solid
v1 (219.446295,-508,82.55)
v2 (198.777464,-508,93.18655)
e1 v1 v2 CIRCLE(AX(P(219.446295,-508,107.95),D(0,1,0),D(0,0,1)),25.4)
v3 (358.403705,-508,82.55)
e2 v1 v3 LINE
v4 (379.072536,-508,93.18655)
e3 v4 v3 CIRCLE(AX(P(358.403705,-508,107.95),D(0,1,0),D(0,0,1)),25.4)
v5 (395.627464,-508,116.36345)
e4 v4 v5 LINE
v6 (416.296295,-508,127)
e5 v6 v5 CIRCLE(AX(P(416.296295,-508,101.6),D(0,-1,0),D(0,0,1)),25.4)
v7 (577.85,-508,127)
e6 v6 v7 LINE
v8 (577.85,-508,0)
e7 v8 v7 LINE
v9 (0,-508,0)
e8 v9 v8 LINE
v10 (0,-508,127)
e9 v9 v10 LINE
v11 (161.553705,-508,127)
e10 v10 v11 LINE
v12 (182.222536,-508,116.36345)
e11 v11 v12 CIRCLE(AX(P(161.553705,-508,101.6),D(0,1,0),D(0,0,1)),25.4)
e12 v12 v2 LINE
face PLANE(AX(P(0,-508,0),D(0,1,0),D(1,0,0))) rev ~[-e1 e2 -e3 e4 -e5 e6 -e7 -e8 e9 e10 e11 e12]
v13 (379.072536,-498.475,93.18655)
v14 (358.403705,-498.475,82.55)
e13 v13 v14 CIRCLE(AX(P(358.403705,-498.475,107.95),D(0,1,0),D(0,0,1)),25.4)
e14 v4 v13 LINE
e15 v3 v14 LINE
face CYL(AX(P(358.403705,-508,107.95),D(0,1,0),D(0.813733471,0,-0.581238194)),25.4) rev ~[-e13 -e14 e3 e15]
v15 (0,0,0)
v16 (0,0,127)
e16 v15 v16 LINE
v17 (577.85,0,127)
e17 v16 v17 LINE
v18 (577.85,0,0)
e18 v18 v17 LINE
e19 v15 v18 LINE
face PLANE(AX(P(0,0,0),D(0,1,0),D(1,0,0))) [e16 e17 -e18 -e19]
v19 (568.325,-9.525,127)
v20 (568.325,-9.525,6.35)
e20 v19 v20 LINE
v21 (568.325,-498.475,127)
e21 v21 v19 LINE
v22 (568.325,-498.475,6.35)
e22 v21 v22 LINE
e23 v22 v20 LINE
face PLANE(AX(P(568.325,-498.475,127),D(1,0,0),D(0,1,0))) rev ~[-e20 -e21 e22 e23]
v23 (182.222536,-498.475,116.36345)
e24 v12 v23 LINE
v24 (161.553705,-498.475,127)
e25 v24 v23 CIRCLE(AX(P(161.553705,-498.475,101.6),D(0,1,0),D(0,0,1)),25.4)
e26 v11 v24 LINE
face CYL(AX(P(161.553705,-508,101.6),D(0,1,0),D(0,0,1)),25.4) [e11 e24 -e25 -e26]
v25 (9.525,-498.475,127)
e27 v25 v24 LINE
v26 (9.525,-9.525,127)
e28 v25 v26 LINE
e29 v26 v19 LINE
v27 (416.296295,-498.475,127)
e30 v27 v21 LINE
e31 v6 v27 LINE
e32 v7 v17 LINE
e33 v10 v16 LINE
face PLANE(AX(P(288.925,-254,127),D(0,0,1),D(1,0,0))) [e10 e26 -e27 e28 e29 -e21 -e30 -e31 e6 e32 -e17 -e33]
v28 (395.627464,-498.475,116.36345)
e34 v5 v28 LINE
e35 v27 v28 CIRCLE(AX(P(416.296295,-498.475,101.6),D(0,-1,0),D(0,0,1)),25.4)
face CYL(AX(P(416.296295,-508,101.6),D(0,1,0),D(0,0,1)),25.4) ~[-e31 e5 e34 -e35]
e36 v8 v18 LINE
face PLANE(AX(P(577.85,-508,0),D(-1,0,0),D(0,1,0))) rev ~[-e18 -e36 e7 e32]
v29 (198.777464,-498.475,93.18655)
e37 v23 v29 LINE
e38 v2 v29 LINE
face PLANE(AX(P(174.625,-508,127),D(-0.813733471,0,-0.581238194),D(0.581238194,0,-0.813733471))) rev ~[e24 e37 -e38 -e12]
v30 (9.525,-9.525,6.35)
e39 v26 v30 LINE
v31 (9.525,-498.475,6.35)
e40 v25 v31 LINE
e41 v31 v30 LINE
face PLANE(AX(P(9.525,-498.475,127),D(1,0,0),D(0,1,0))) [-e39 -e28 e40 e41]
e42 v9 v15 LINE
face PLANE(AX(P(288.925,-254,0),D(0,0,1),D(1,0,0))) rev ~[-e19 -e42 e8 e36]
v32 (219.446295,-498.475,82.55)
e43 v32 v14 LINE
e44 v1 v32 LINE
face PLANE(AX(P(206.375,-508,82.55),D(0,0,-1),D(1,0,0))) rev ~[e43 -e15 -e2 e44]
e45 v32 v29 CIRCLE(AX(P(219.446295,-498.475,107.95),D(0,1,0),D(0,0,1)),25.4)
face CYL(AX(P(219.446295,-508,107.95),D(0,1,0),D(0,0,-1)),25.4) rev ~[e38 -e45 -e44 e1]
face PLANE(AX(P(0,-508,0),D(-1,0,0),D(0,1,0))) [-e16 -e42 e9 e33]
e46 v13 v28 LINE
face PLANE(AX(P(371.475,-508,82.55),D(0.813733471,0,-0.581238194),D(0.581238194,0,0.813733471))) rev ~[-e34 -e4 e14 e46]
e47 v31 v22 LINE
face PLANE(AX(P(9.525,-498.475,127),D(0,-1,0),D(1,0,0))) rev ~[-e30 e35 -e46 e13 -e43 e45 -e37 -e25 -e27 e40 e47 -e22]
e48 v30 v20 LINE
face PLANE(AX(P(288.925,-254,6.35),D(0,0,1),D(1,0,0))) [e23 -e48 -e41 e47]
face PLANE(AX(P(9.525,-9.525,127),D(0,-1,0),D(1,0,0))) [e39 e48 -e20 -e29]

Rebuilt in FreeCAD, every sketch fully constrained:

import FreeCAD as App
import Part
import Sketcher
from FreeCAD import Vector
Q = App.Units.Quantity


def edges_at(feature, points):
    """Names of the edges that pass closest to the given points."""
    edges = feature.Shape.Edges
    near = lambda p: min(range(len(edges)), key=lambda i: edges[i].distToShape(Part.Vertex(*p))[0])
    return sorted({f"Edge{near(p) + 1}" for p in points})

doc = App.newDocument("Part")
body = doc.addObject("PartDesign::Body", "Body")

sketch1 = doc.addObject("Sketcher::SketchObject", "Sketch")
body.addObject(sketch1)
sketch1.AttachmentSupport = (doc.XY_Plane, [""])
sketch1.MapMode = "FlatFace"
sketch1.addGeometry([
    Part.LineSegment(Vector(0, 0, 0), Vector(0, -508, 0)),
    Part.LineSegment(Vector(0, -508, 0), Vector(577.85, -508, 0)),
    Part.LineSegment(Vector(577.85, -508, 0), Vector(577.85, 0, 0)),
    Part.LineSegment(Vector(577.85, 0, 0), Vector(0, 0, 0)),
], False)
sketch1.addConstraint([
    Sketcher.Constraint("Coincident", 0, 2, 1, 1),
    Sketcher.Constraint("Coincident", 1, 2, 2, 1),
    Sketcher.Constraint("Coincident", 2, 2, 3, 1),
    Sketcher.Constraint("Coincident", 3, 2, 0, 1),
    Sketcher.Constraint("Vertical", 0),
    Sketcher.Constraint("Horizontal", 1),
    Sketcher.Constraint("Vertical", 2),
    Sketcher.Constraint("Horizontal", 3),
    Sketcher.Constraint("Coincident", 3, 2, -1, 1),
    Sketcher.Constraint("DistanceY", 0, 2, 0, 1, Q("20 in")),
    Sketcher.Constraint("DistanceX", 1, 1, 1, 2, Q("22.75 in")),
])
pad1 = doc.addObject("PartDesign::Pad", "Pad")
body.addObject(pad1)
pad1.Profile = sketch1
pad1.Length = Q("5 in")

sketch2 = doc.addObject("Sketcher::SketchObject", "Sketch001")
body.addObject(sketch2)
sketch2.AttachmentSupport = (doc.XY_Plane, [""])
sketch2.MapMode = "FlatFace"
sketch2.AttachmentOffset = App.Placement(Vector(0, 0, 5 * 25.4), App.Rotation())
sketch2.addGeometry([
    Part.LineSegment(Vector(9.525, -9.525, 0), Vector(9.525, -498.475, 0)),
    Part.LineSegment(Vector(9.525, -498.475, 0), Vector(568.325, -498.475, 0)),
    Part.LineSegment(Vector(568.325, -498.475, 0), Vector(568.325, -9.525, 0)),
    Part.LineSegment(Vector(568.325, -9.525, 0), Vector(9.525, -9.525, 0)),
], False)
sketch2.addConstraint([
    Sketcher.Constraint("Coincident", 0, 2, 1, 1),
    Sketcher.Constraint("Coincident", 1, 2, 2, 1),
    Sketcher.Constraint("Coincident", 2, 2, 3, 1),
    Sketcher.Constraint("Coincident", 3, 2, 0, 1),
    Sketcher.Constraint("Vertical", 0),
    Sketcher.Constraint("Horizontal", 1),
    Sketcher.Constraint("Vertical", 2),
    Sketcher.Constraint("Horizontal", 3),
    Sketcher.Constraint("DistanceX", 1, 1, 1, 2, Q("22 in")),
    Sketcher.Constraint("DistanceY", 0, 2, 0, 1, Q("19.25 in")),
    Sketcher.Constraint("DistanceX", -1, 1, 0, 2, Q("0.375 in")),
    Sketcher.Constraint("DistanceY", 0, 2, -1, 1, Q("19.625 in")),
])
pocket1 = doc.addObject("PartDesign::Pocket", "Pocket")
body.addObject(pocket1)
pocket1.Profile = sketch2
pocket1.Length = Q("4.75 in")

sketch3 = doc.addObject("Sketcher::SketchObject", "Sketch002")
body.addObject(sketch3)
sketch3.AttachmentSupport = (doc.XZ_Plane, [""])
sketch3.MapMode = "FlatFace"
sketch3.AttachmentOffset = App.Placement(Vector(0, 0, 20 * 25.4), App.Rotation())
sketch3.addGeometry([
    Part.LineSegment(Vector(403.225, 127, 0), Vector(174.625, 127, 0)),
    Part.LineSegment(Vector(174.625, 127, 0), Vector(206.375, 82.55, 0)),
    Part.LineSegment(Vector(206.375, 82.55, 0), Vector(371.475, 82.55, 0)),
    Part.LineSegment(Vector(371.475, 82.55, 0), Vector(403.225, 127, 0)),
], False)
sketch3.addConstraint([
    Sketcher.Constraint("Coincident", 0, 2, 1, 1),
    Sketcher.Constraint("Coincident", 1, 2, 2, 1),
    Sketcher.Constraint("Coincident", 2, 2, 3, 1),
    Sketcher.Constraint("Coincident", 3, 2, 0, 1),
    Sketcher.Constraint("Horizontal", 0),
    Sketcher.Constraint("Horizontal", 2),
    Sketcher.Constraint("Equal", 1, 3),
    Sketcher.Constraint("DistanceX", 0, 2, 0, 1, Q("9 in")),
    Sketcher.Constraint("DistanceX", 2, 1, 2, 2, Q("6.5 in")),
    Sketcher.Constraint("DistanceY", -1, 1, 0, 2, Q("5 in")),
    Sketcher.Constraint("DistanceY", -1, 1, 1, 2, Q("3.25 in")),
    Sketcher.Constraint("DistanceX", -1, 1, 0, 2, Q("6.875 in")),
])
pocket2 = doc.addObject("PartDesign::Pocket", "Pocket001")
body.addObject(pocket2)
pocket2.Profile = sketch3
pocket2.Length = Q("0.375 in")
doc.recompute()

fillet = doc.addObject("PartDesign::Fillet", "Fillet")
body.addObject(fillet)
fillet.Base = (pocket2, edges_at(pocket2, [
    (403.225, -503.238, 127),
    (371.475, -503.238, 82.55),
    (174.625, -503.238, 127),
    (206.375, -503.238, 82.55),
]))
fillet.Radius = Q("1 in")

doc.recompute()
